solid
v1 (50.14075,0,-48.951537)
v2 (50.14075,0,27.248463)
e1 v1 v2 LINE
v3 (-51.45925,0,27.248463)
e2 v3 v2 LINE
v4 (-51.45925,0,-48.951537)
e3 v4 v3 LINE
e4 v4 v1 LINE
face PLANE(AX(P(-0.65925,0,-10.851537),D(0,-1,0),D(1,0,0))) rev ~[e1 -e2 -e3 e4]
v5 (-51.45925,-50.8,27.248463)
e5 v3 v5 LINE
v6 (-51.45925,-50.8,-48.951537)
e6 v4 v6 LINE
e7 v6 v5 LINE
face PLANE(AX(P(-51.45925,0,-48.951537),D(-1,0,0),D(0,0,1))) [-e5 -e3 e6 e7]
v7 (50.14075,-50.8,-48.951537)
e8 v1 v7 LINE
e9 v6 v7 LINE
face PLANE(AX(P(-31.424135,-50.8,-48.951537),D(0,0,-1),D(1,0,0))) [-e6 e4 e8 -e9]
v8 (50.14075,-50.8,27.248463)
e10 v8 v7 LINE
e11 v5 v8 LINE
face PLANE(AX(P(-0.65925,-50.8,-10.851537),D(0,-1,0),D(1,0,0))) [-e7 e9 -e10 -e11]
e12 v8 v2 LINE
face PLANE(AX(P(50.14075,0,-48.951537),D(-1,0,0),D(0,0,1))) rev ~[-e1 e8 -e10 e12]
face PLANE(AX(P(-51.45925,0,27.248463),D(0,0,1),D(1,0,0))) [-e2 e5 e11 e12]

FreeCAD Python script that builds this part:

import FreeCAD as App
import Part
import Sketcher

V = App.Vector
Q = App.Units.Quantity

doc = App.newDocument("Part")
params = doc.addObject("Spreadsheet::Sheet", "Params")
for row, (alias, value) in enumerate([
    ("sketch1_width", "4 in"),
    ("sketch1_height", "3 in"),
    ("pad1_length", "2 in"),
    ("sketch2_height", "1.5 in"),
    ("pad2_length", "1 in"),
], start=1):
    params.set(f"A{row}", alias)
    params.set(f"B{row}", "=" + value)
    params.setAlias(f"B{row}", alias)

body = doc.addObject("PartDesign::Body", "Body")

# Sketch on XZ plane
sketch1 = body.newObject("Sketcher::SketchObject", "Sketch")
sketch1.AttachmentSupport = (doc.getObject("XZ_Plane"), [""])
sketch1.MapMode = "FlatFace"
sketch1.addGeometry([
    Part.LineSegment(V(-51.45925, 27.248463, 0), V(-51.45925, -48.951537, 0)),
    Part.LineSegment(V(-51.45925, -48.951537, 0), V(50.14075, -48.951537, 0)),
    Part.LineSegment(V(50.14075, -48.951537, 0), V(50.14075, 27.248463, 0)),
    Part.LineSegment(V(50.14075, 27.248463, 0), V(-51.45925, 27.248463, 0)),
], False)
sketch1.addConstraint([
    Sketcher.Constraint("Coincident", 0, 2, 1, 1),
    Sketcher.Constraint("Coincident", 1, 2, 2, 1),
    Sketcher.Constraint("Coincident", 2, 2, 3, 1),
    Sketcher.Constraint("Coincident", 3, 2, 0, 1),
    Sketcher.Constraint("Vertical", 0),
    Sketcher.Constraint("Horizontal", 1),
    Sketcher.Constraint("Vertical", 2),
    Sketcher.Constraint("Horizontal", 3),
    Sketcher.Constraint("DistanceX", 1, 1, 1, 2, Q("4 in")),
    Sketcher.Constraint("DistanceY", 0, 2, 0, 1, Q("3 in")),
    Sketcher.Constraint("DistanceX", 0, 2, -1, 1, Q("51.45925 mm")),
    Sketcher.Constraint("DistanceY", 0, 2, -1, 1, Q("48.951537 mm")),
])
sketch1.setExpression("Constraints[8]", "Params.sketch1_width")
sketch1.setExpression("Constraints[9]", "Params.sketch1_height")
pad1 = body.newObject("PartDesign::Pad", "Pad")
pad1.Profile = sketch1
pad1.setExpression("Length", "Params.pad1_length")

# Sketch on XZ plane
sketch2 = body.newObject("Sketcher::SketchObject", "Sketch001")
sketch2.AttachmentSupport = (doc.getObject("XZ_Plane"), [""])
sketch2.MapMode = "FlatFace"
sketch2.AttachmentOffset = App.Placement(V(0, 0, 2 * 25.4), App.Rotation())
sketch2.addGeometry([
    Part.LineSegment(V(50.14075, 27.248463, 0), V(-9.009716, 27.248463, 0)),  # 0
    Part.LineSegment(V(-9.009716, 27.248463, 0), V(-31.424135, -48.951537, 0)),  # 1
    Part.LineSegment(V(-31.424135, -48.951537, 0), V(25.271157, -48.951537, 0)),  # 2
    Part.LineSegment(V(25.271157, -48.951537, 0), V(50.14075, -10.851537, 0)),  # 3
    Part.LineSegment(V(50.14075, -10.851537, 0), V(50.14075, 27.248463, 0)),  # 4
], False)
sketch2.addConstraint([
    Sketcher.Constraint("Coincident", 0, 2, 1, 1),
    Sketcher.Constraint("Coincident", 1, 2, 2, 1),
    Sketcher.Constraint("Coincident", 2, 2, 3, 1),
    Sketcher.Constraint("Coincident", 3, 2, 4, 1),
    Sketcher.Constraint("Coincident", 4, 2, 0, 1),
    Sketcher.Constraint("Horizontal", 0),
    Sketcher.Constraint("Horizontal", 2),
    Sketcher.Constraint("Vertical", 4),
    Sketcher.Constraint("DistanceY", 4, 1, 4, 2, Q("1.5 in")),
    Sketcher.Constraint("DistanceY", 1, 2, 0, 2, Q("3 in")),
    Sketcher.Constraint("DistanceX", 2, 1, 2, 2, Q("56.695292 mm")),
    Sketcher.Constraint("DistanceX", 0, 2, 0, 1, Q("59.150466 mm")),
    Sketcher.Constraint("DistanceX", -1, 1, 3, 2, Q("50.14075 mm")),
    Sketcher.Constraint("DistanceX", 1, 2, 0, 2, Q("22.414419 mm")),
    Sketcher.Constraint("DistanceY", -1, 1, 0, 2, Q("27.248463 mm")),
])
sketch2.setExpression("Constraints[8]", "Params.sketch2_height")
pad2 = body.newObject("PartDesign::Pad", "Pad001")
pad2.Profile = sketch2
pad2.setExpression("Length", "Params.pad2_length")
pad2.Reversed = True

doc.recompute()
